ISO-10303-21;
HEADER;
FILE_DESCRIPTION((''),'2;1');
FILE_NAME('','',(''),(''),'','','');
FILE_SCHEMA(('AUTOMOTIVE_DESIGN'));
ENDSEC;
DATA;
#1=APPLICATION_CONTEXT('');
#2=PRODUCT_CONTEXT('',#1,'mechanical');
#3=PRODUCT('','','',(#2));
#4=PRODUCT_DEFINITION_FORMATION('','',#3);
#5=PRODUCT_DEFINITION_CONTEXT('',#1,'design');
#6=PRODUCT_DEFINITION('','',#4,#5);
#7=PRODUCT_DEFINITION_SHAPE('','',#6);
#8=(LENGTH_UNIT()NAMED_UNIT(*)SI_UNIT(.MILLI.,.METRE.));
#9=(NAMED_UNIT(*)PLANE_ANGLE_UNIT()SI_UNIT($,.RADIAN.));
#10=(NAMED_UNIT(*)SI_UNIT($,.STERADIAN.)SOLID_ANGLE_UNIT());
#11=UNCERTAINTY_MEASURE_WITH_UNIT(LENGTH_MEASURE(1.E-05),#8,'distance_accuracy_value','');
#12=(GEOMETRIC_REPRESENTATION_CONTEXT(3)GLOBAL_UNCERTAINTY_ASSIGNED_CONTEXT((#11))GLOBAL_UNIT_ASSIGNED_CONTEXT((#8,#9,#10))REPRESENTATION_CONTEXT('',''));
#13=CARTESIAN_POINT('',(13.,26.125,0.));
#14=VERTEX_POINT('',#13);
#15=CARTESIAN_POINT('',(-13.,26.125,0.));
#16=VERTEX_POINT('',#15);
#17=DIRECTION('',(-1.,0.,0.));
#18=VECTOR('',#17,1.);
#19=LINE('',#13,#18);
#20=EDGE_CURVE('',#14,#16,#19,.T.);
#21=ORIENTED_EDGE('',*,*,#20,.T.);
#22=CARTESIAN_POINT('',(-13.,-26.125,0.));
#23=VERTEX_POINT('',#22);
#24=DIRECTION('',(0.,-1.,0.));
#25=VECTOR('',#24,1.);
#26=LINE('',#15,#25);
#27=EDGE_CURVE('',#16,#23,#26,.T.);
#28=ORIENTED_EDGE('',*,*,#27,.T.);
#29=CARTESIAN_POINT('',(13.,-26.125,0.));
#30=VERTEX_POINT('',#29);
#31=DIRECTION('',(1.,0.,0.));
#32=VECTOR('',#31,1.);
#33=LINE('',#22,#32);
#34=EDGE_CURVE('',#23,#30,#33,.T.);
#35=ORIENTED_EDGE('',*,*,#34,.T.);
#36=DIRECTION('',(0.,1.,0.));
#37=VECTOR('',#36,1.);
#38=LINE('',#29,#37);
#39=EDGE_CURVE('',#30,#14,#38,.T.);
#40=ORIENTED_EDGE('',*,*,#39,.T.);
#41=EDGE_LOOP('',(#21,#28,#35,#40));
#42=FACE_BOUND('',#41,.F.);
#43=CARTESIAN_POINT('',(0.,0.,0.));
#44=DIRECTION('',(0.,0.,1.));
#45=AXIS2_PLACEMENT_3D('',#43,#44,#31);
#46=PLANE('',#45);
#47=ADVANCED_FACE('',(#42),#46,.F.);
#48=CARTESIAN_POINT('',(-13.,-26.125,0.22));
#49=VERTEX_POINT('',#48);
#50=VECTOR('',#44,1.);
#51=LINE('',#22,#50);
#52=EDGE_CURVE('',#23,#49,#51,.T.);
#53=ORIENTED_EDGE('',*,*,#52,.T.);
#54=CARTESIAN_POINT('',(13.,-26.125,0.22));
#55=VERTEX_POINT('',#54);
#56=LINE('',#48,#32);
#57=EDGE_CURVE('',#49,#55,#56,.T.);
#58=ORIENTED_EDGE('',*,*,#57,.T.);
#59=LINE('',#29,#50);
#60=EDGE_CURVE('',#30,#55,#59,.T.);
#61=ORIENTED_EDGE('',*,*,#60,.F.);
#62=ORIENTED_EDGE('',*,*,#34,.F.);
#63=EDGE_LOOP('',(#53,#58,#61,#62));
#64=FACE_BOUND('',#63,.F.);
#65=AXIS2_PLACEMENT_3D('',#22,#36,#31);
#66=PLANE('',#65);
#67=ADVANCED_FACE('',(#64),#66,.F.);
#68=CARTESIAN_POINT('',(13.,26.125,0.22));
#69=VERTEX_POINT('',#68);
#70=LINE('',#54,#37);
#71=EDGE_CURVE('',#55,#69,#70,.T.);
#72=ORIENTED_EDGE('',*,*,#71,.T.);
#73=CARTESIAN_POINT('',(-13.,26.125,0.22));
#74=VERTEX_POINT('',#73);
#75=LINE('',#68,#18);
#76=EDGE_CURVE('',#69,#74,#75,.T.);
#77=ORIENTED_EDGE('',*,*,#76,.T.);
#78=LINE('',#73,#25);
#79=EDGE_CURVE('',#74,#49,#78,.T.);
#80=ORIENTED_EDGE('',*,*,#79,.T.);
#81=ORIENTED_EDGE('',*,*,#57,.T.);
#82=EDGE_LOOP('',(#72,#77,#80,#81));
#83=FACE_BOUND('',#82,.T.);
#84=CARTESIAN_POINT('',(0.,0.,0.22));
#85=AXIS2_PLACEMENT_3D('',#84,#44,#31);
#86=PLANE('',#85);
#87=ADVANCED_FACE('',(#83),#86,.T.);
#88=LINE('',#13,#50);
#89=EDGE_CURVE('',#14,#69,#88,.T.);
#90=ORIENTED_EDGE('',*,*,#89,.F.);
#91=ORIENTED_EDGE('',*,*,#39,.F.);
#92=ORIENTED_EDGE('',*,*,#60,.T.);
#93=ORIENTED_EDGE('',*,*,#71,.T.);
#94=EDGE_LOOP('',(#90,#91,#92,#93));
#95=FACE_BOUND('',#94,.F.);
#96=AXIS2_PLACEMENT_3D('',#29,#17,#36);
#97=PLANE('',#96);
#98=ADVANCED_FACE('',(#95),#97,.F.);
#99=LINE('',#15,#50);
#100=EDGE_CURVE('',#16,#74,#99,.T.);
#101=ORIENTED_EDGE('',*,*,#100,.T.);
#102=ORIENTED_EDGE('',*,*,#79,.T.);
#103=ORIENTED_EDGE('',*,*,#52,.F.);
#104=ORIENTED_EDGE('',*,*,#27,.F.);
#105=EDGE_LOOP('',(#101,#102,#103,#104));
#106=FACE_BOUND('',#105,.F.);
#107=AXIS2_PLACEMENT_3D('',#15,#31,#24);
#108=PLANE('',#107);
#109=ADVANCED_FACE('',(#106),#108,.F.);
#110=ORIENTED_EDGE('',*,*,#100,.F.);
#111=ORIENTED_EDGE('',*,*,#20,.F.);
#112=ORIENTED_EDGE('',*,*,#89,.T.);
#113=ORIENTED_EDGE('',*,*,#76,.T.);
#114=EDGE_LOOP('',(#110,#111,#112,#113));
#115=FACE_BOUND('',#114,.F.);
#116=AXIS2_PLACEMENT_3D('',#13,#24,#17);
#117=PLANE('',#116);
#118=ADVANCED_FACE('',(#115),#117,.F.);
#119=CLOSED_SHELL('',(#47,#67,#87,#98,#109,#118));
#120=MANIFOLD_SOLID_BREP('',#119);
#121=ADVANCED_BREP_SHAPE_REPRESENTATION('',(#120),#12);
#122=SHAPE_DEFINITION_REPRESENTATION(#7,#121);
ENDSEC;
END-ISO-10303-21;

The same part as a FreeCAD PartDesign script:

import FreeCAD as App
import Part
import Sketcher
from FreeCAD import Vector
Q = App.Units.Quantity


def add_polygon(sketch, points):
    """Adds a closed chain of lines whose ends are joined by coincident constraints."""
    first, n = sketch.GeometryCount, len(points)
    for a, b in zip(points, points[1:] + points[:1]):
        sketch.addGeometry(Part.LineSegment(App.Vector(*a, 0), App.Vector(*b, 0)), False)
    for i in range(n):
        sketch.addConstraint(Sketcher.Constraint("Coincident", first + i, 2, first + (i + 1) % n, 1))

doc = App.newDocument("Part")
params = doc.addObject("Spreadsheet::Sheet", "Params")
for row, (alias, value) in enumerate([
    ("sketch1_width", "26 mm"),
    ("sketch1_height", "52.25 mm"),
    ("pad1_length", "0.22 mm"),
], start=1):
    params.set(f"A{row}", alias)
    params.set(f"B{row}", "=" + value)
    params.setAlias(f"B{row}", alias)

body = doc.addObject("PartDesign::Body", "Body")

# Sketch on XY plane
sketch1 = body.newObject("Sketcher::SketchObject", "Sketch")
sketch1.AttachmentSupport = (doc.getObject("XY_Plane"), [""])
sketch1.MapMode = "FlatFace"
add_polygon(sketch1, [(-13, 26), (-13, -26), (13, -26), (13, 26)])  # lines 0-3
sketch1.addConstraint(Sketcher.Constraint("Vertical", 0))
sketch1.addConstraint(Sketcher.Constraint("Horizontal", 1))
sketch1.addConstraint(Sketcher.Constraint("Vertical", 2))
sketch1.addConstraint(Sketcher.Constraint("Horizontal", 3))
sketch1.addConstraint(Sketcher.Constraint("Symmetric", 0, 2, 2, 2, -1, 1))
sketch1.addConstraint(Sketcher.Constraint("DistanceX", 1, 1, 1, 2, Q("26 mm")))
sketch1.addConstraint(Sketcher.Constraint("DistanceY", 0, 2, 0, 1, Q("52.25 mm")))
sketch1.setExpression("Constraints[9]", "Params.sketch1_width")
sketch1.setExpression("Constraints[10]", "Params.sketch1_height")
pad1 = body.newObject("PartDesign::Pad", "Pad")
pad1.Profile = sketch1
pad1.setExpression("Length", "Params.pad1_length")

doc.recompute()
